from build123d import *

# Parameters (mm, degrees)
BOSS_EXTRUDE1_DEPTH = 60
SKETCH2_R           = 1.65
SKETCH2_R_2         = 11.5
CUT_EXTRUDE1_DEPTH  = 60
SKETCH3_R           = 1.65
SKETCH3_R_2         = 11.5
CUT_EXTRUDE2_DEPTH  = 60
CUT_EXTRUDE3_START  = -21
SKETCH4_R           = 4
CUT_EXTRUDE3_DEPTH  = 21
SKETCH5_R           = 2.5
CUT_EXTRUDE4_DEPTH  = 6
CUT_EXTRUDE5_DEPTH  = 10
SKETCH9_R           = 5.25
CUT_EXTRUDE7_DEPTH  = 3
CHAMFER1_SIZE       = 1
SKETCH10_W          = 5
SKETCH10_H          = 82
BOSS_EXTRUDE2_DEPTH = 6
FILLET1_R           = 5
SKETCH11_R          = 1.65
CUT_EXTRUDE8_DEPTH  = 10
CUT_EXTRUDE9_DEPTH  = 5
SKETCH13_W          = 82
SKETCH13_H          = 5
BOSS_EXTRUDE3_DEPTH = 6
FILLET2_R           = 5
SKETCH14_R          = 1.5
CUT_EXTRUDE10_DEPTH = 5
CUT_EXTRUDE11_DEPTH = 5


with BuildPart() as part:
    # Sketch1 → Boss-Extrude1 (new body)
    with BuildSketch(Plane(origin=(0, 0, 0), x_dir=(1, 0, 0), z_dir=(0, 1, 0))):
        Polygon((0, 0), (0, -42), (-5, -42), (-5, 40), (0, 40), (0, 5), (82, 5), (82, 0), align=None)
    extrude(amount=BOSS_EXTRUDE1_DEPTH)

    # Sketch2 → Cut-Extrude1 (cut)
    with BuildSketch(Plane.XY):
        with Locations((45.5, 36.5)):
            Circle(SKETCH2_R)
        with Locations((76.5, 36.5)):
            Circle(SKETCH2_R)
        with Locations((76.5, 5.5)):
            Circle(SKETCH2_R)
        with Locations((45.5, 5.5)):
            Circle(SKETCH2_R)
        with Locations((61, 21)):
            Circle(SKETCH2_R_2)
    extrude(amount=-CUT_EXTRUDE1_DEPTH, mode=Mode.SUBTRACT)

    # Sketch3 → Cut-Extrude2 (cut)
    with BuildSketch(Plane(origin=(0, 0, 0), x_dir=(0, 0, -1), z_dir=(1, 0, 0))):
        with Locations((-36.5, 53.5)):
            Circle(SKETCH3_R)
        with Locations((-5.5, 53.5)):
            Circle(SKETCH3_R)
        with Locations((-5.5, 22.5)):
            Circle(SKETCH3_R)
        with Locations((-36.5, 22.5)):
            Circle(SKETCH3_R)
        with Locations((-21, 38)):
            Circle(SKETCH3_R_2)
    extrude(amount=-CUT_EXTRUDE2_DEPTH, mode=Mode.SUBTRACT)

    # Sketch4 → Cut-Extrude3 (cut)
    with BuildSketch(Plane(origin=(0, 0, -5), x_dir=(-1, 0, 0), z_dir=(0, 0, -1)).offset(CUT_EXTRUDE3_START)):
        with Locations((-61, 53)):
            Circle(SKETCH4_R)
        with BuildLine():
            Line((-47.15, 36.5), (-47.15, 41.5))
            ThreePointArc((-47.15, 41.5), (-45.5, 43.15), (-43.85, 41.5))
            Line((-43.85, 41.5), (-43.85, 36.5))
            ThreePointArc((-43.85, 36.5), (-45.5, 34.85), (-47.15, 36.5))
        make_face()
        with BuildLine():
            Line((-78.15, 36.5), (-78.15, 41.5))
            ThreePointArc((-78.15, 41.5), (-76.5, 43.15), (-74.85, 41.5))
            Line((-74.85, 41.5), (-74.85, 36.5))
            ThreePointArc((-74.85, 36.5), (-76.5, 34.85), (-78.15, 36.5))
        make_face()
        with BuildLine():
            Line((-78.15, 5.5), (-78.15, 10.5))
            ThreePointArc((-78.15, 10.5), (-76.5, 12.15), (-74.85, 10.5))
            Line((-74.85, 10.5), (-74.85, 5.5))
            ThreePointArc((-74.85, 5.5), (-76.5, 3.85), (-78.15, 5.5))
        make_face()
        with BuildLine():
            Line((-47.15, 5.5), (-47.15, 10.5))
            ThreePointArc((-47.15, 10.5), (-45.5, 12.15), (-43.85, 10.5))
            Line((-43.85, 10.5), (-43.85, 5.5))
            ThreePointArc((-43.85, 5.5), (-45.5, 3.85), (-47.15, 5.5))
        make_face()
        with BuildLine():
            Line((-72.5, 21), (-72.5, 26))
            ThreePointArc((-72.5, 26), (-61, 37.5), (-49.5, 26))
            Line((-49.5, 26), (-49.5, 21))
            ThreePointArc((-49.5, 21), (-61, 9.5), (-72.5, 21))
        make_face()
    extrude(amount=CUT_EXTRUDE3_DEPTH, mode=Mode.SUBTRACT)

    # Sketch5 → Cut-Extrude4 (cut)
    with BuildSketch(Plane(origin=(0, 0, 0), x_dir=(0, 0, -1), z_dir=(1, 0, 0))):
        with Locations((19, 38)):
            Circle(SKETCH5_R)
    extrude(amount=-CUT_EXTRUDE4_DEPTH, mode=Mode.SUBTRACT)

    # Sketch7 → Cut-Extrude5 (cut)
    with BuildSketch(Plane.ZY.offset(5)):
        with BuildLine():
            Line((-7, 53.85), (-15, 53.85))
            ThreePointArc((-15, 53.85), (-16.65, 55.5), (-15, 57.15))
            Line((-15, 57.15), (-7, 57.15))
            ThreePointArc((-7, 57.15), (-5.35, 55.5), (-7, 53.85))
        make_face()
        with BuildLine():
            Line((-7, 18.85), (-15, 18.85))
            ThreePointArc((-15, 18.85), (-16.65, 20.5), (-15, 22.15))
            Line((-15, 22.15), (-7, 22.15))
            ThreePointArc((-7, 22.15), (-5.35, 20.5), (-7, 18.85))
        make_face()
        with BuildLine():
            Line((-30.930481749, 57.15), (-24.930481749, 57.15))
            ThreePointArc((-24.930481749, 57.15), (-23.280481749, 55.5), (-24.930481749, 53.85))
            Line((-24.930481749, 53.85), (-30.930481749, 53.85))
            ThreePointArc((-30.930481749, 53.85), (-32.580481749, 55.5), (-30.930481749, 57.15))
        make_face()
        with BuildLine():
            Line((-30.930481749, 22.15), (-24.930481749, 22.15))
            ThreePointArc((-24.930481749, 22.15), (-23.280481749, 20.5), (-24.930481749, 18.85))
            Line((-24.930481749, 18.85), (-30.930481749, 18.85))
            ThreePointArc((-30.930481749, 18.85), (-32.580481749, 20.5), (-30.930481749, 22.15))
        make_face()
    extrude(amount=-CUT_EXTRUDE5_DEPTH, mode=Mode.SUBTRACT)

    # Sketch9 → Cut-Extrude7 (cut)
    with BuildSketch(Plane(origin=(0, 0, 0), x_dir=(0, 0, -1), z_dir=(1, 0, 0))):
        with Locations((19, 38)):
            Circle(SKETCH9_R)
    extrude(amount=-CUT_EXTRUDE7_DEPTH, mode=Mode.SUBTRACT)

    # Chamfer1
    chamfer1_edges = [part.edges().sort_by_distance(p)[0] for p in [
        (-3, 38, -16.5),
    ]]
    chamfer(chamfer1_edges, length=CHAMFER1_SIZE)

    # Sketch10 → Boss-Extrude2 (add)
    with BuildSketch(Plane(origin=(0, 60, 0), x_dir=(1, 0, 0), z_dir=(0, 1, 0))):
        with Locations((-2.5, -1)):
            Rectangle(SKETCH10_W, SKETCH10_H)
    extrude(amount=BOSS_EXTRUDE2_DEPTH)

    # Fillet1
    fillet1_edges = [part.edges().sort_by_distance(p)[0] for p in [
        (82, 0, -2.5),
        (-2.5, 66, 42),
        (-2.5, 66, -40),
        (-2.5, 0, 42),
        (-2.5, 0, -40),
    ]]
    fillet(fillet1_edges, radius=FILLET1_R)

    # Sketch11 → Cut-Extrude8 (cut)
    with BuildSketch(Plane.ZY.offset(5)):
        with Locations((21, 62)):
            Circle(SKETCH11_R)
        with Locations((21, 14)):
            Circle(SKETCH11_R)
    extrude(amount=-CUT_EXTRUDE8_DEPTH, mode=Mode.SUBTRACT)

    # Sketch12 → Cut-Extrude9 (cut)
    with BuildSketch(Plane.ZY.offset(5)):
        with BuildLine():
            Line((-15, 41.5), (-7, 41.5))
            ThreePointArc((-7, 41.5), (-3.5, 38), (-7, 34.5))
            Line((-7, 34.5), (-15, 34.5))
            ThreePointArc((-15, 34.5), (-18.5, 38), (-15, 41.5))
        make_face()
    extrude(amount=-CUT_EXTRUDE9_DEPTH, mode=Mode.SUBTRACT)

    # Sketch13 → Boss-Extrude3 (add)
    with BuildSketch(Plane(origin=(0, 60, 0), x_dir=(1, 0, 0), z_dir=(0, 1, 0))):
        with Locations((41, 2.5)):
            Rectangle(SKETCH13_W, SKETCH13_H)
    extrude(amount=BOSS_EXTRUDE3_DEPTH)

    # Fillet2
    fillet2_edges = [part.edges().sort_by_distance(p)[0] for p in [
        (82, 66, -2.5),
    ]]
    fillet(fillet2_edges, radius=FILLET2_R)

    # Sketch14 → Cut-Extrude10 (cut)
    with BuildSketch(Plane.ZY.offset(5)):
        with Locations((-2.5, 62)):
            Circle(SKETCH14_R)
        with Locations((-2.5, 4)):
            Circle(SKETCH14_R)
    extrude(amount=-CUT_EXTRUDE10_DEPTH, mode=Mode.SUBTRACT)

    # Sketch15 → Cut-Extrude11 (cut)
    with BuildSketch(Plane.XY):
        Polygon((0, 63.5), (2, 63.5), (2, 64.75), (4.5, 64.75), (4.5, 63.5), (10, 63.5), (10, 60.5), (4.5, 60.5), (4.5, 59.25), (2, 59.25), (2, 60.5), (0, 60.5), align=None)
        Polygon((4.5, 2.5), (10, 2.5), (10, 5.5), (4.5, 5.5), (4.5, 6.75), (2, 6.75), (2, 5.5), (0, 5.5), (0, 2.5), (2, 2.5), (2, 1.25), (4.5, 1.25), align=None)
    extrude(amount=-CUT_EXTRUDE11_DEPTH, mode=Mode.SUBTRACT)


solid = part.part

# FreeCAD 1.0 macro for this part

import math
import FreeCAD as App
import Part
import Sketcher
from FreeCAD import Vector


def edges_at(feature, points):
    """Names of the edges that pass closest to the given points."""
    edges = feature.Shape.Edges
    near = lambda p: min(range(len(edges)), key=lambda i: edges[i].distToShape(Part.Vertex(*p))[0])
    return sorted({f"Edge{near(p) + 1}" for p in points})

doc = App.newDocument("Part")
body = doc.addObject("PartDesign::Body", "Body")

# Sketch on XZ plane
sketch1 = body.newObject("Sketcher::SketchObject", "Sketch")
sketch1.AttachmentSupport = (doc.getObject("XZ_Plane"), [""])
sketch1.MapMode = "FlatFace"
sketch1.addGeometry(Part.LineSegment(Vector(0, 42, 0), Vector(0, 0, 0)), False)
sketch1.addGeometry(Part.LineSegment(Vector(0, 0, 0), Vector(82, 0, 0)), False)
sketch1.addGeometry(Part.LineSegment(Vector(82, 0, 0), Vector(82, -5, 0)), False)
sketch1.addGeometry(Part.LineSegment(Vector(82, -5, 0), Vector(0, -5, 0)), False)
sketch1.addGeometry(Part.LineSegment(Vector(0, -5, 0), Vector(0, -40, 0)), False)
sketch1.addGeometry(Part.LineSegment(Vector(0, -40, 0), Vector(-5, -40, 0)), False)
sketch1.addGeometry(Part.LineSegment(Vector(-5, -40, 0), Vector(-5, 42, 0)), False)
sketch1.addGeometry(Part.LineSegment(Vector(-5, 42, 0), Vector(0, 42, 0)), False)
sketch1.addConstraint(Sketcher.Constraint("Coincident", 0, 2, 1, 1))
sketch1.addConstraint(Sketcher.Constraint("Coincident", 1, 2, 2, 1))
sketch1.addConstraint(Sketcher.Constraint("Coincident", 2, 2, 3, 1))
sketch1.addConstraint(Sketcher.Constraint("Coincident", 3, 2, 4, 1))
sketch1.addConstraint(Sketcher.Constraint("Coincident", 4, 2, 5, 1))
sketch1.addConstraint(Sketcher.Constraint("Coincident", 5, 2, 6, 1))
sketch1.addConstraint(Sketcher.Constraint("Coincident", 6, 2, 7, 1))
sketch1.addConstraint(Sketcher.Constraint("Coincident", 7, 2, 0, 1))
sketch1.addConstraint(Sketcher.Constraint("Vertical", 0))
sketch1.addConstraint(Sketcher.Constraint("Horizontal", 1))
sketch1.addConstraint(Sketcher.Constraint("Vertical", 2))
sketch1.addConstraint(Sketcher.Constraint("Horizontal", 3))
sketch1.addConstraint(Sketcher.Constraint("Vertical", 4))
sketch1.addConstraint(Sketcher.Constraint("Horizontal", 5))
sketch1.addConstraint(Sketcher.Constraint("Vertical", 6))
sketch1.addConstraint(Sketcher.Constraint("Horizontal", 7))
sketch1.addConstraint(Sketcher.Constraint("Coincident", 0, 2, -1, 1))
sketch1.addConstraint(Sketcher.Constraint("PointOnObject", 3, 2, -2))
sketch1.addConstraint(Sketcher.Constraint("Equal", 7, 2))
sketch1.addConstraint(Sketcher.Constraint("Equal", 3, 6))
sketch1.addConstraint(Sketcher.Constraint("DistanceX", 1, 1, 1, 2, 82.0))
sketch1.addConstraint(Sketcher.Constraint("DistanceX", 5, 2, 5, 1, 5.0))
sketch1.addConstraint(Sketcher.Constraint("DistanceY", 0, 2, 0, 1, 42.0))
pad1 = body.newObject("PartDesign::Pad", "Pad")
pad1.Profile = sketch1
pad1.Length = 60
pad1.Reversed = True

# Sketch on XY plane
sketch2 = body.newObject("Sketcher::SketchObject", "Sketch001")
sketch2.AttachmentSupport = (doc.getObject("XY_Plane"), [""])
sketch2.MapMode = "FlatFace"
sketch2.addGeometry(Part.Circle(Vector(45.5, 36.5, 0), Vector(0, 0, 1), 1.6), False)
sketch2.addGeometry(Part.Circle(Vector(76.5, 36.5, 0), Vector(0, 0, 1), 1.6), False)
sketch2.addGeometry(Part.Circle(Vector(76.5, 5.5, 0), Vector(0, 0, 1), 1.6), False)
sketch2.addGeometry(Part.Circle(Vector(45.5, 5.5, 0), Vector(0, 0, 1), 1.6), False)
sketch2.addGeometry(Part.Circle(Vector(61, 21, 0), Vector(0, 0, 1), 11.5), False)
sketch2.addConstraint(Sketcher.Constraint("Equal", 0, 1))
sketch2.addConstraint(Sketcher.Constraint("Equal", 1, 2))
sketch2.addConstraint(Sketcher.Constraint("Equal", 2, 3))
sketch2.addConstraint(Sketcher.Constraint("Horizontal", 0, 3, 1, 3))
sketch2.addConstraint(Sketcher.Constraint("Horizontal", 2, 3, 3, 3))
sketch2.addConstraint(Sketcher.Constraint("Vertical", 1, 3, 2, 3))
sketch2.addConstraint(Sketcher.Constraint("Vertical", 0, 3, 3, 3))
sketch2.addConstraint(Sketcher.Constraint("Diameter", 4, 23.0))
sketch2.addConstraint(Sketcher.Constraint("Diameter", 0, 3.3))
sketch2.addConstraint(Sketcher.Constraint("DistanceX", -1, 1, 4, 3, 61.0))
sketch2.addConstraint(Sketcher.Constraint("DistanceY", -1, 1, 4, 3, 21.0))
sketch2.addConstraint(Sketcher.Constraint("DistanceX", 0, 3, 1, 3, 31.0))
sketch2.addConstraint(Sketcher.Constraint("DistanceY", 2, 3, 1, 3, 31.0))
sketch2.addConstraint(Sketcher.Constraint("DistanceX", -1, 1, 0, 3, 45.5))
sketch2.addConstraint(Sketcher.Constraint("DistanceY", -1, 1, 0, 3, 36.5))
pocket1 = body.newObject("PartDesign::Pocket", "Pocket")
pocket1.Profile = sketch2
pocket1.Length = 60

# Sketch on YZ plane
sketch3 = body.newObject("Sketcher::SketchObject", "Sketch002")
sketch3.AttachmentSupport = (doc.getObject("YZ_Plane"), [""])
sketch3.MapMode = "FlatFace"
sketch3.addGeometry(Part.Circle(Vector(53.5, 36.5, 0), Vector(0, 0, 1), 1.6), False)
sketch3.addGeometry(Part.Circle(Vector(53.5, 5.5, 0), Vector(0, 0, 1), 1.6), False)
sketch3.addGeometry(Part.Circle(Vector(22.5, 5.5, 0), Vector(0, 0, 1), 1.6), False)
sketch3.addGeometry(Part.Circle(Vector(22.5, 36.5, 0), Vector(0, 0, 1), 1.6), False)
sketch3.addGeometry(Part.Circle(Vector(38, 21, 0), Vector(0, 0, 1), 11.5), False)
sketch3.addConstraint(Sketcher.Constraint("Equal", 0, 1))
sketch3.addConstraint(Sketcher.Constraint("Equal", 1, 2))
sketch3.addConstraint(Sketcher.Constraint("Equal", 2, 3))
sketch3.addConstraint(Sketcher.Constraint("Horizontal", 1, 3, 2, 3))
sketch3.addConstraint(Sketcher.Constraint("Horizontal", 0, 3, 3, 3))
sketch3.addConstraint(Sketcher.Constraint("Vertical", 0, 3, 1, 3))
sketch3.addConstraint(Sketcher.Constraint("Vertical", 2, 3, 3, 3))
sketch3.addConstraint(Sketcher.Constraint("Diameter", 4, 23.0))
sketch3.addConstraint(Sketcher.Constraint("Diameter", 0, 3.3))
sketch3.addConstraint(Sketcher.Constraint("DistanceX", -1, 1, 4, 3, 38.0))
sketch3.addConstraint(Sketcher.Constraint("DistanceY", -1, 1, 4, 3, 21.0))
sketch3.addConstraint(Sketcher.Constraint("DistanceY", 1, 3, 0, 3, 31.0))
sketch3.addConstraint(Sketcher.Constraint("DistanceX", 2, 3, 1, 3, 31.0))
sketch3.addConstraint(Sketcher.Constraint("DistanceX", -1, 1, 0, 3, 53.5))
sketch3.addConstraint(Sketcher.Constraint("DistanceY", -1, 1, 0, 3, 36.5))
pocket2 = body.newObject("PartDesign::Pocket", "Pocket001")
pocket2.Profile = sketch3
pocket2.Length = 60

# Sketch on XY plane
sketch4 = body.newObject("Sketcher::SketchObject", "Sketch003")
sketch4.AttachmentSupport = (doc.getObject("XY_Plane"), [""])
sketch4.MapMode = "FlatFace"
sketch4.AttachmentOffset = App.Placement(Vector(0, 0, 16), App.Rotation())
sketch4.addGeometry(Part.Circle(Vector(61, 53, 0), Vector(0, 0, 1), 4), False)
sketch4.addGeometry(Part.LineSegment(Vector(47.1, 41.5, 0), Vector(47.1, 36.5, 0)), False)
sketch4.addGeometry(Part.ArcOfCircle(Part.Circle(Vector(45.5, 36.5, 0), Vector(0, 0, 1), 1.6), math.radians(180), math.radians(360)), False)
sketch4.addGeometry(Part.LineSegment(Vector(43.9, 36.5, 0), Vector(43.9, 41.5, 0)), False)
sketch4.addGeometry(Part.ArcOfCircle(Part.Circle(Vector(45.5, 41.5, 0), Vector(0, 0, 1), 1.6), math.radians(0), math.radians(180)), False)
sketch4.addGeometry(Part.LineSegment(Vector(78.2, 41.5, 0), Vector(78.2, 36.5, 0)), False)
sketch4.addGeometry(Part.ArcOfCircle(Part.Circle(Vector(76.5, 36.5, 0), Vector(0, 0, 1), 1.6), math.radians(180), math.radians(360)), False)
sketch4.addGeometry(Part.LineSegment(Vector(74.8, 36.5, 0), Vector(74.8, 41.5, 0)), False)
sketch4.addGeometry(Part.ArcOfCircle(Part.Circle(Vector(76.5, 41.5, 0), Vector(0, 0, 1), 1.6), math.radians(0), math.radians(180)), False)
sketch4.addGeometry(Part.LineSegment(Vector(78.2, 10.5, 0), Vector(78.2, 5.5, 0)), False)
sketch4.addGeometry(Part.ArcOfCircle(Part.Circle(Vector(76.5, 5.5, 0), Vector(0, 0, 1), 1.6), math.radians(180), math.radians(360)), False)
sketch4.addGeometry(Part.LineSegment(Vector(74.8, 5.5, 0), Vector(74.8, 10.5, 0)), False)
sketch4.addGeometry(Part.ArcOfCircle(Part.Circle(Vector(76.5, 10.5, 0), Vector(0, 0, 1), 1.6), math.radians(0), math.radians(180)), False)
sketch4.addGeometry(Part.LineSegment(Vector(47.1, 10.5, 0), Vector(47.1, 5.5, 0)), False)
sketch4.addGeometry(Part.ArcOfCircle(Part.Circle(Vector(45.5, 5.5, 0), Vector(0, 0, 1), 1.6), math.radians(180), math.radians(360)), False)
sketch4.addGeometry(Part.LineSegment(Vector(43.9, 5.5, 0), Vector(43.9, 10.5, 0)), False)
sketch4.addGeometry(Part.ArcOfCircle(Part.Circle(Vector(45.5, 10.5, 0), Vector(0, 0, 1), 1.6), math.radians(0), math.radians(180)), False)
sketch4.addGeometry(Part.LineSegment(Vector(72.5, 26, 0), Vector(72.5, 21, 0)), False)
sketch4.addGeometry(Part.ArcOfCircle(Part.Circle(Vector(61, 21, 0), Vector(0, 0, 1), 11.5), math.radians(180), math.radians(360)), False)
sketch4.addGeometry(Part.LineSegment(Vector(49.5, 21, 0), Vector(49.5, 26, 0)), False)
sketch4.addGeometry(Part.ArcOfCircle(Part.Circle(Vector(61, 26, 0), Vector(0, 0, 1), 11.5), math.radians(0), math.radians(180)), False)
sketch4.addConstraint(Sketcher.Constraint("Tangent", 1, 2, 2, 2))
sketch4.addConstraint(Sketcher.Constraint("Tangent", 2, 1, 3, 1))
sketch4.addConstraint(Sketcher.Constraint("Tangent", 3, 2, 4, 2))
sketch4.addConstraint(Sketcher.Constraint("Tangent", 4, 1, 1, 1))
sketch4.addConstraint(Sketcher.Constraint("Tangent", 5, 2, 6, 2))
sketch4.addConstraint(Sketcher.Constraint("Tangent", 6, 1, 7, 1))
sketch4.addConstraint(Sketcher.Constraint("Tangent", 7, 2, 8, 2))
sketch4.addConstraint(Sketcher.Constraint("Tangent", 8, 1, 5, 1))
sketch4.addConstraint(Sketcher.Constraint("Tangent", 9, 2, 10, 2))
sketch4.addConstraint(Sketcher.Constraint("Tangent", 10, 1, 11, 1))
sketch4.addConstraint(Sketcher.Constraint("Tangent", 11, 2, 12, 2))
sketch4.addConstraint(Sketcher.Constraint("Tangent", 12, 1, 9, 1))
sketch4.addConstraint(Sketcher.Constraint("Tangent", 13, 2, 14, 2))
sketch4.addConstraint(Sketcher.Constraint("Tangent", 14, 1, 15, 1))
sketch4.addConstraint(Sketcher.Constraint("Tangent", 15, 2, 16, 2))
sketch4.addConstraint(Sketcher.Constraint("Tangent", 16, 1, 13, 1))
sketch4.addConstraint(Sketcher.Constraint("Tangent", 17, 2, 18, 2))
sketch4.addConstraint(Sketcher.Constraint("Tangent", 18, 1, 19, 1))
sketch4.addConstraint(Sketcher.Constraint("Tangent", 19, 2, 20, 2))
sketch4.addConstraint(Sketcher.Constraint("Tangent", 20, 1, 17, 1))
sketch4.addConstraint(Sketcher.Constraint("Vertical", 1))
sketch4.addConstraint(Sketcher.Constraint("Vertical", 3))
sketch4.addConstraint(Sketcher.Constraint("Vertical", 5))
sketch4.addConstraint(Sketcher.Constraint("Vertical", 7))
sketch4.addConstraint(Sketcher.Constraint("Vertical", 9))
sketch4.addConstraint(Sketcher.Constraint("Vertical", 11))
sketch4.addConstraint(Sketcher.Constraint("Vertical", 13))
sketch4.addConstraint(Sketcher.Constraint("Vertical", 15))
sketch4.addConstraint(Sketcher.Constraint("Vertical", 17))
sketch4.addConstraint(Sketcher.Constraint("Vertical", 19))
sketch4.addConstraint(Sketcher.Constraint("Equal", 4, 6))
sketch4.addConstraint(Sketcher.Constraint("Equal", 8, 10))
sketch4.addConstraint(Sketcher.Constraint("Equal", 12, 14))
sketch4.addConstraint(Sketcher.Constraint("Horizontal", 2, 3, 6, 3))
sketch4.addConstraint(Sketcher.Constraint("Horizontal", 4, 3, 8, 3))
sketch4.addConstraint(Sketcher.Constraint("Horizontal", 10, 3, 14, 3))
sketch4.addConstraint(Sketcher.Constraint("Horizontal", 12, 3, 16, 3))
sketch4.addConstraint(Sketcher.Constraint("Vertical", 8, 3, 10, 3))
sketch4.addConstraint(Sketcher.Constraint("Vertical", 4, 3, 14, 3))
sketch4.addConstraint(Sketcher.Constraint("Vertical", 0, 3, 18, 3))
sketch4.addConstraint(Sketcher.Constraint("Equal", 7, 9))
sketch4.addConstraint(Sketcher.Constraint("Equal", 15, 17))
sketch4.addConstraint(Sketcher.Constraint("Diameter", 0, 8.0))
sketch4.addConstraint(Sketcher.Constraint("Radius", 18, 11.5))
sketch4.addConstraint(Sketcher.Constraint("DistanceY", 1, 2, 1, 1, 5.0))
sketch4.addConstraint(Sketcher.Constraint("Radius", 2, 1.65))
sketch4.addConstraint(Sketcher.Constraint("DistanceX", -1, 1, 0, 3, 61.0))
sketch4.addConstraint(Sketcher.Constraint("DistanceY", -1, 1, 0, 3, 53.0))
sketch4.addConstraint(Sketcher.Constraint("DistanceY", -1, 1, 18, 3, 21.0))
sketch4.addConstraint(Sketcher.Constraint("DistanceX", 2, 3, 6, 3, 31.0))
sketch4.addConstraint(Sketcher.Constraint("DistanceY", 10, 3, 6, 3, 31.0))
sketch4.addConstraint(Sketcher.Constraint("DistanceX", 17, 2, 12, 3, 4.0))
sketch4.addConstraint(Sketcher.Constraint("DistanceY", -1, 1, 2, 3, 36.5))
pocket3 = body.newObject("PartDesign::Pocket", "Pocket002")
pocket3.Profile = sketch4
pocket3.Length = 21

# Sketch on YZ plane
sketch5 = body.newObject("Sketcher::SketchObject", "Sketch004")
sketch5.AttachmentSupport = (doc.getObject("YZ_Plane"), [""])
sketch5.MapMode = "FlatFace"
sketch5.addGeometry(Part.Circle(Vector(38, -19, 0), Vector(0, 0, 1), 2.5), False)
sketch5.addConstraint(Sketcher.Constraint("Diameter", 0, 5.0))
sketch5.addConstraint(Sketcher.Constraint("DistanceX", -1, 1, 0, 3, 38.0))
sketch5.addConstraint(Sketcher.Constraint("DistanceY", 0, 3, -1, 1, 19.0))
pocket4 = body.newObject("PartDesign::Pocket", "Pocket003")
pocket4.Profile = sketch5
pocket4.Length = 6

# Sketch on YZ plane
sketch6 = body.newObject("Sketcher::SketchObject", "Sketch005")
sketch6.AttachmentSupport = (doc.getObject("YZ_Plane"), [""])
sketch6.MapMode = "FlatFace"
sketch6.AttachmentOffset = App.Placement(Vector(0, 0, -5), App.Rotation())
sketch6.addGeometry(Part.LineSegment(Vector(53.9, -15, 0), Vector(53.9, -7, 0)), False)
sketch6.addGeometry(Part.ArcOfCircle(Part.Circle(Vector(55.5, -7, 0), Vector(0, 0, 1), 1.6), math.radians(0), math.radians(180)), False)
sketch6.addGeometry(Part.LineSegment(Vector(57.1, -7, 0), Vector(57.1, -15, 0)), False)
sketch6.addGeometry(Part.ArcOfCircle(Part.Circle(Vector(55.5, -15, 0), Vector(0, 0, 1), 1.6), math.radians(180), math.radians(360)), False)
sketch6.addGeometry(Part.LineSegment(Vector(18.9, -15, 0), Vector(18.9, -7, 0)), False)
sketch6.addGeometry(Part.ArcOfCircle(Part.Circle(Vector(20.5, -7, 0), Vector(0, 0, 1), 1.6), math.radians(0), math.radians(180)), False)
sketch6.addGeometry(Part.LineSegment(Vector(22.1, -7, 0), Vector(22.1, -15, 0)), False)
sketch6.addGeometry(Part.ArcOfCircle(Part.Circle(Vector(20.5, -15, 0), Vector(0, 0, 1), 1.6), math.radians(180), math.radians(360)), False)
sketch6.addGeometry(Part.LineSegment(Vector(57.1, -24.9, 0), Vector(57.1, -30.9, 0)), False)
sketch6.addGeometry(Part.ArcOfCircle(Part.Circle(Vector(55.5, -30.9, 0), Vector(0, 0, 1), 1.6), math.radians(180), math.radians(360)), False)
sketch6.addGeometry(Part.LineSegment(Vector(53.9, -30.9, 0), Vector(53.9, -24.9, 0)), False)
sketch6.addGeometry(Part.ArcOfCircle(Part.Circle(Vector(55.5, -24.9, 0), Vector(0, 0, 1), 1.6), math.radians(0), math.radians(180)), False)
sketch6.addGeometry(Part.LineSegment(Vector(22.1, -24.9, 0), Vector(22.1, -30.9, 0)), False)
sketch6.addGeometry(Part.ArcOfCircle(Part.Circle(Vector(20.5, -30.9, 0), Vector(0, 0, 1), 1.6), math.radians(180), math.radians(360)), False)
sketch6.addGeometry(Part.LineSegment(Vector(18.9, -30.9, 0), Vector(18.9, -24.9, 0)), False)
sketch6.addGeometry(Part.ArcOfCircle(Part.Circle(Vector(20.5, -24.9, 0), Vector(0, 0, 1), 1.6), math.radians(0), math.radians(180)), False)
sketch6.addConstraint(Sketcher.Constraint("Tangent", 0, 2, 1, 2))
sketch6.addConstraint(Sketcher.Constraint("Tangent", 1, 1, 2, 1))
sketch6.addConstraint(Sketcher.Constraint("Tangent", 2, 2, 3, 2))
sketch6.addConstraint(Sketcher.Constraint("Tangent", 3, 1, 0, 1))
sketch6.addConstraint(Sketcher.Constraint("Tangent", 4, 2, 5, 2))
sketch6.addConstraint(Sketcher.Constraint("Tangent", 5, 1, 6, 1))
sketch6.addConstraint(Sketcher.Constraint("Tangent", 6, 2, 7, 2))
sketch6.addConstraint(Sketcher.Constraint("Tangent", 7, 1, 4, 1))
sketch6.addConstraint(Sketcher.Constraint("Tangent", 8, 2, 9, 2))
sketch6.addConstraint(Sketcher.Constraint("Tangent", 9, 1, 10, 1))
sketch6.addConstraint(Sketcher.Constraint("Tangent", 10, 2, 11, 2))
sketch6.addConstraint(Sketcher.Constraint("Tangent", 11, 1, 8, 1))
sketch6.addConstraint(Sketcher.Constraint("Tangent", 12, 2, 13, 2))
sketch6.addConstraint(Sketcher.Constraint("Tangent", 13, 1, 14, 1))
sketch6.addConstraint(Sketcher.Constraint("Tangent", 14, 2, 15, 2))
sketch6.addConstraint(Sketcher.Constraint("Tangent", 15, 1, 12, 1))
sketch6.addConstraint(Sketcher.Constraint("Vertical", 0))
sketch6.addConstraint(Sketcher.Constraint("Vertical", 2))
sketch6.addConstraint(Sketcher.Constraint("Vertical", 4))
sketch6.addConstraint(Sketcher.Constraint("Vertical", 6))
sketch6.addConstraint(Sketcher.Constraint("Vertical", 8))
sketch6.addConstraint(Sketcher.Constraint("Vertical", 10))
sketch6.addConstraint(Sketcher.Constraint("Vertical", 12))
sketch6.addConstraint(Sketcher.Constraint("Vertical", 14))
sketch6.addConstraint(Sketcher.Constraint("Equal", 3, 5))
sketch6.addConstraint(Sketcher.Constraint("Equal", 7, 9))
sketch6.addConstraint(Sketcher.Constraint("Equal", 11, 13))
sketch6.addConstraint(Sketcher.Constraint("Horizontal", 1, 3, 5, 3))
sketch6.addConstraint(Sketcher.Constraint("Horizontal", 3, 3, 7, 3))
sketch6.addConstraint(Sketcher.Constraint("Horizontal", 9, 3, 13, 3))
sketch6.addConstraint(Sketcher.Constraint("Horizontal", 11, 3, 15, 3))
sketch6.addConstraint(Sketcher.Constraint("Vertical", 3, 3, 9, 3))
sketch6.addConstraint(Sketcher.Constraint("Vertical", 7, 3, 13, 3))
sketch6.addConstraint(Sketcher.Constraint("DistanceY", 0, 1, 0, 2, 8.0))
sketch6.addConstraint(Sketcher.Constraint("DistanceY", 8, 2, 8, 1, 6.0))
sketch6.addConstraint(Sketcher.Constraint("Radius", 1, 1.65))
sketch6.addConstraint(Sketcher.Constraint("DistanceY", 1, 3, -1, 1, 7.0))
sketch6.addConstraint(Sketcher.Constraint("DistanceX", 5, 3, 1, 3, 35.0))
sketch6.addConstraint(Sketcher.Constraint("DistanceX", -1, 1, 1, 3, 55.5))
sketch6.addConstraint(Sketcher.Constraint("DistanceY", 9, 3, -1, 1, 30.930482))
pocket5 = body.newObject("PartDesign::Pocket", "Pocket004")
pocket5.Profile = sketch6
pocket5.Length = 10
pocket5.Reversed = True

# Sketch on YZ plane
sketch7 = body.newObject("Sketcher::SketchObject", "Sketch006")
sketch7.AttachmentSupport = (doc.getObject("YZ_Plane"), [""])
sketch7.MapMode = "FlatFace"
sketch7.addGeometry(Part.Circle(Vector(38, -19, 0), Vector(0, 0, 1), 5), False)
sketch7.addConstraint(Sketcher.Constraint("Diameter", 0, 10.5))
sketch7.addConstraint(Sketcher.Constraint("DistanceX", -1, 1, 0, 3, 38.0))
sketch7.addConstraint(Sketcher.Constraint("DistanceY", 0, 3, -1, 1, 19.0))
pocket6 = body.newObject("PartDesign::Pocket", "Pocket005")
pocket6.Profile = sketch7
pocket6.Length = 3
doc.recompute()

chamfer = body.newObject("PartDesign::Chamfer", "Chamfer")
chamfer.Base = (pocket6, edges_at(pocket6, [(-3, 38, -16.5)]))
chamfer.Size = 1

# Sketch on XZ plane
sketch8 = body.newObject("Sketcher::SketchObject", "Sketch007")
sketch8.AttachmentSupport = (doc.getObject("XZ_Plane"), [""])
sketch8.MapMode = "FlatFace"
sketch8.AttachmentOffset = App.Placement(Vector(0, 0, -60), App.Rotation())
sketch8.addGeometry(Part.LineSegment(Vector(-5, -40, 0), Vector(-5, 42, 0)), False)
sketch8.addGeometry(Part.LineSegment(Vector(-5, 42, 0), Vector(0, 42, 0)), False)
sketch8.addGeometry(Part.LineSegment(Vector(0, 42, 0), Vector(0, -40, 0)), False)
sketch8.addGeometry(Part.LineSegment(Vector(0, -40, 0), Vector(-5, -40, 0)), False)
sketch8.addConstraint(Sketcher.Constraint("Coincident", 0, 2, 1, 1))
sketch8.addConstraint(Sketcher.Constraint("Coincident", 1, 2, 2, 1))
sketch8.addConstraint(Sketcher.Constraint("Coincident", 2, 2, 3, 1))
sketch8.addConstraint(Sketcher.Constraint("Coincident", 3, 2, 0, 1))
sketch8.addConstraint(Sketcher.Constraint("Vertical", 0))
sketch8.addConstraint(Sketcher.Constraint("Horizontal", 1))
sketch8.addConstraint(Sketcher.Constraint("Vertical", 2))
sketch8.addConstraint(Sketcher.Constraint("Horizontal", 3))
sketch8.addConstraint(Sketcher.Constraint("PointOnObject", 1, 2, -2))
sketch8.addConstraint(Sketcher.Constraint("DistanceX", 1, 1, 1, 2, 5.0))
sketch8.addConstraint(Sketcher.Constraint("DistanceY", 0, 1, 0, 2, 82.0))
sketch8.addConstraint(Sketcher.Constraint("DistanceY", -1, 1, 0, 2, 42.0))
pad2 = body.newObject("PartDesign::Pad", "Pad001")
pad2.Profile = sketch8
pad2.Length = 6
pad2.Reversed = True
doc.recompute()

fillet = body.newObject("PartDesign::Fillet", "Fillet")
fillet.Base = (pad2, edges_at(pad2, [
    (82, 0, -2.5),
    (-2.5, 66, 42),
    (-2.5, 66, -40),
    (-2.5, 0, 42),
    (-2.5, 0, -40),
]))
fillet.Radius = 5

# Sketch on YZ plane
sketch9 = body.newObject("Sketcher::SketchObject", "Sketch008")
sketch9.AttachmentSupport = (doc.getObject("YZ_Plane"), [""])
sketch9.MapMode = "FlatFace"
sketch9.AttachmentOffset = App.Placement(Vector(0, 0, -5), App.Rotation())
sketch9.addGeometry(Part.Circle(Vector(62, 21, 0), Vector(0, 0, 1), 1.6), False)
sketch9.addGeometry(Part.Circle(Vector(14, 21, 0), Vector(0, 0, 1), 1.6), False)
sketch9.addConstraint(Sketcher.Constraint("Equal", 0, 1))
sketch9.addConstraint(Sketcher.Constraint("Horizontal", 0, 3, 1, 3))
sketch9.addConstraint(Sketcher.Constraint("Diameter", 0, 3.3))
sketch9.addConstraint(Sketcher.Constraint("DistanceX", -1, 1, 0, 3, 62.0))
sketch9.addConstraint(Sketcher.Constraint("DistanceY", -1, 1, 0, 3, 21.0))
sketch9.addConstraint(Sketcher.Constraint("DistanceX", -1, 1, 1, 3, 14.0))
pocket7 = body.newObject("PartDesign::Pocket", "Pocket006")
pocket7.Profile = sketch9
pocket7.Length = 10
pocket7.Reversed = True

# Sketch on YZ plane
sketch10 = body.newObject("Sketcher::SketchObject", "Sketch009")
sketch10.AttachmentSupport = (doc.getObject("YZ_Plane"), [""])
sketch10.MapMode = "FlatFace"
sketch10.AttachmentOffset = App.Placement(Vector(0, 0, -5), App.Rotation())
sketch10.addGeometry(Part.LineSegment(Vector(41.5, -7, 0), Vector(41.5, -15, 0)), False)
sketch10.addGeometry(Part.ArcOfCircle(Part.Circle(Vector(38, -15, 0), Vector(0, 0, 1), 3.5), math.radians(180), math.radians(360)), False)
sketch10.addGeometry(Part.LineSegment(Vector(34.5, -15, 0), Vector(34.5, -7, 0)), False)
sketch10.addGeometry(Part.ArcOfCircle(Part.Circle(Vector(38, -7, 0), Vector(0, 0, 1), 3.5), math.radians(0), math.radians(180)), False)
sketch10.addConstraint(Sketcher.Constraint("Tangent", 0, 2, 1, 2))
sketch10.addConstraint(Sketcher.Constraint("Tangent", 1, 1, 2, 1))
sketch10.addConstraint(Sketcher.Constraint("Tangent", 2, 2, 3, 2))
sketch10.addConstraint(Sketcher.Constraint("Tangent", 3, 1, 0, 1))
sketch10.addConstraint(Sketcher.Constraint("Vertical", 0))
sketch10.addConstraint(Sketcher.Constraint("Vertical", 2))
sketch10.addConstraint(Sketcher.Constraint("Radius", 1, 3.5))
sketch10.addConstraint(Sketcher.Constraint("DistanceY", 0, 2, 0, 1, 8.0))
sketch10.addConstraint(Sketcher.Constraint("DistanceX", -1, 1, 1, 3, 38.0))
sketch10.addConstraint(Sketcher.Constraint("DistanceY", 1, 3, -1, 1, 15.0))
pocket8 = body.newObject("PartDesign::Pocket", "Pocket007")
pocket8.Profile = sketch10
pocket8.Length = 5
pocket8.Reversed = True

# Sketch on XZ plane
sketch11 = body.newObject("Sketcher::SketchObject", "Sketch010")
sketch11.AttachmentSupport = (doc.getObject("XZ_Plane"), [""])
sketch11.MapMode = "FlatFace"
sketch11.AttachmentOffset = App.Placement(Vector(0, 0, -60), App.Rotation())
sketch11.addGeometry(Part.LineSegment(Vector(0, -5, 0), Vector(0, 0, 0)), False)
sketch11.addGeometry(Part.LineSegment(Vector(0, 0, 0), Vector(82, 0, 0)), False)
sketch11.addGeometry(Part.LineSegment(Vector(82, 0, 0), Vector(82, -5, 0)), False)
sketch11.addGeometry(Part.LineSegment(Vector(82, -5, 0), Vector(0, -5, 0)), False)
sketch11.addConstraint(Sketcher.Constraint("Coincident", 0, 2, 1, 1))
sketch11.addConstraint(Sketcher.Constraint("Coincident", 1, 2, 2, 1))
sketch11.addConstraint(Sketcher.Constraint("Coincident", 2, 2, 3, 1))
sketch11.addConstraint(Sketcher.Constraint("Coincident", 3, 2, 0, 1))
sketch11.addConstraint(Sketcher.Constraint("Vertical", 0))
sketch11.addConstraint(Sketcher.Constraint("Horizontal", 1))
sketch11.addConstraint(Sketcher.Constraint("Vertical", 2))
sketch11.addConstraint(Sketcher.Constraint("Horizontal", 3))
sketch11.addConstraint(Sketcher.Constraint("Coincident", 0, 2, -1, 1))
sketch11.addConstraint(Sketcher.Constraint("DistanceX", 1, 1, 1, 2, 82.0))
sketch11.addConstraint(Sketcher.Constraint("DistanceY", 0, 1, 0, 2, 5.0))
pad3 = body.newObject("PartDesign::Pad", "Pad002")
pad3.Profile = sketch11
pad3.Length = 6
pad3.Reversed = True
doc.recompute()

fillet2 = body.newObject("PartDesign::Fillet", "Fillet001")
fillet2.Base = (pad3, edges_at(pad3, [(82, 66, -2.5)]))
fillet2.Radius = 5

# Sketch on YZ plane
sketch12 = body.newObject("Sketcher::SketchObject", "Sketch011")
sketch12.AttachmentSupport = (doc.getObject("YZ_Plane"), [""])
sketch12.MapMode = "FlatFace"
sketch12.AttachmentOffset = App.Placement(Vector(0, 0, -5), App.Rotation())
sketch12.addGeometry(Part.Circle(Vector(62, -2.5, 0), Vector(0, 0, 1), 1.5), False)
sketch12.addGeometry(Part.Circle(Vector(4, -2.5, 0), Vector(0, 0, 1), 1.5), False)
sketch12.addConstraint(Sketcher.Constraint("Equal", 0, 1))
sketch12.addConstraint(Sketcher.Constraint("Horizontal", 0, 3, 1, 3))
sketch12.addConstraint(Sketcher.Constraint("Diameter", 0, 3.0))
sketch12.addConstraint(Sketcher.Constraint("DistanceX", -1, 1, 0, 3, 62.0))
sketch12.addConstraint(Sketcher.Constraint("DistanceX", -1, 1, 1, 3, 4.0))
sketch12.addConstraint(Sketcher.Constraint("DistanceY", 0, 3, -1, 1, 2.5))
pocket9 = body.newObject("PartDesign::Pocket", "Pocket008")
pocket9.Profile = sketch12
pocket9.Length = 5
pocket9.Reversed = True

# Sketch on XY plane
sketch13 = body.newObject("Sketcher::SketchObject", "Sketch012")
sketch13.AttachmentSupport = (doc.getObject("XY_Plane"), [""])
sketch13.MapMode = "FlatFace"
sketch13.addGeometry(Part.LineSegment(Vector(2, 63.5, 0), Vector(0, 63.5, 0)), False)
sketch13.addGeometry(Part.LineSegment(Vector(0, 63.5, 0), Vector(0, 60.5, 0)), False)
sketch13.addGeometry(Part.LineSegment(Vector(0, 60.5, 0), Vector(2, 60.5, 0)), False)
sketch13.addGeometry(Part.LineSegment(Vector(2, 60.5, 0), Vector(2, 59.2, 0)), False)
sketch13.addGeometry(Part.LineSegment(Vector(2, 59.2, 0), Vector(4.5, 59.2, 0)), False)
sketch13.addGeometry(Part.LineSegment(Vector(4.5, 59.2, 0), Vector(4.5, 60.5, 0)), False)
sketch13.addGeometry(Part.LineSegment(Vector(4.5, 60.5, 0), Vector(10, 60.5, 0)), False)
sketch13.addGeometry(Part.LineSegment(Vector(10, 60.5, 0), Vector(10, 63.5, 0)), False)
sketch13.addGeometry(Part.LineSegment(Vector(10, 63.5, 0), Vector(4.5, 63.5, 0)), False)
sketch13.addGeometry(Part.LineSegment(Vector(4.5, 63.5, 0), Vector(4.5, 64.8, 0)), False)
sketch13.addGeometry(Part.LineSegment(Vector(4.5, 64.8, 0), Vector(2, 64.8, 0)), False)
sketch13.addGeometry(Part.LineSegment(Vector(2, 64.8, 0), Vector(2, 63.5, 0)), False)
sketch13.addGeometry(Part.LineSegment(Vector(4.5, 2.5, 0), Vector(10, 2.5, 0)), False)
sketch13.addGeometry(Part.LineSegment(Vector(10, 2.5, 0), Vector(10, 5.5, 0)), False)
sketch13.addGeometry(Part.LineSegment(Vector(10, 5.5, 0), Vector(4.5, 5.5, 0)), False)
sketch13.addGeometry(Part.LineSegment(Vector(4.5, 5.5, 0), Vector(4.5, 6.8, 0)), False)
sketch13.addGeometry(Part.LineSegment(Vector(4.5, 6.8, 0), Vector(2, 6.8, 0)), False)
sketch13.addGeometry(Part.LineSegment(Vector(2, 6.8, 0), Vector(2, 5.5, 0)), False)
sketch13.addGeometry(Part.LineSegment(Vector(2, 5.5, 0), Vector(0, 5.5, 0)), False)
sketch13.addGeometry(Part.LineSegment(Vector(0, 5.5, 0), Vector(0, 2.5, 0)), False)
sketch13.addGeometry(Part.LineSegment(Vector(0, 2.5, 0), Vector(2, 2.5, 0)), False)
sketch13.addGeometry(Part.LineSegment(Vector(2, 2.5, 0), Vector(2, 1.2, 0)), False)
sketch13.addGeometry(Part.LineSegment(Vector(2, 1.2, 0), Vector(4.5, 1.2, 0)), False)
sketch13.addGeometry(Part.LineSegment(Vector(4.5, 1.2, 0), Vector(4.5, 2.5, 0)), False)
sketch13.addConstraint(Sketcher.Constraint("Coincident", 0, 2, 1, 1))
sketch13.addConstraint(Sketcher.Constraint("Coincident", 1, 2, 2, 1))
sketch13.addConstraint(Sketcher.Constraint("Coincident", 2, 2, 3, 1))
sketch13.addConstraint(Sketcher.Constraint("Coincident", 3, 2, 4, 1))
sketch13.addConstraint(Sketcher.Constraint("Coincident", 4, 2, 5, 1))
sketch13.addConstraint(Sketcher.Constraint("Coincident", 5, 2, 6, 1))
sketch13.addConstraint(Sketcher.Constraint("Coincident", 6, 2, 7, 1))
sketch13.addConstraint(Sketcher.Constraint("Coincident", 7, 2, 8, 1))
sketch13.addConstraint(Sketcher.Constraint("Coincident", 8, 2, 9, 1))
sketch13.addConstraint(Sketcher.Constraint("Coincident", 9, 2, 10, 1))
sketch13.addConstraint(Sketcher.Constraint("Coincident", 10, 2, 11, 1))
sketch13.addConstraint(Sketcher.Constraint("Coincident", 11, 2, 0, 1))
sketch13.addConstraint(Sketcher.Constraint("Coincident", 12, 2, 13, 1))
sketch13.addConstraint(Sketcher.Constraint("Coincident", 13, 2, 14, 1))
sketch13.addConstraint(Sketcher.Constraint("Coincident", 14, 2, 15, 1))
sketch13.addConstraint(Sketcher.Constraint("Coincident", 15, 2, 16, 1))
sketch13.addConstraint(Sketcher.Constraint("Coincident", 16, 2, 17, 1))
sketch13.addConstraint(Sketcher.Constraint("Coincident", 17, 2, 18, 1))
sketch13.addConstraint(Sketcher.Constraint("Coincident", 18, 2, 19, 1))
sketch13.addConstraint(Sketcher.Constraint("Coincident", 19, 2, 20, 1))
sketch13.addConstraint(Sketcher.Constraint("Coincident", 20, 2, 21, 1))
sketch13.addConstraint(Sketcher.Constraint("Coincident", 21, 2, 22, 1))
sketch13.addConstraint(Sketcher.Constraint("Coincident", 22, 2, 23, 1))
sketch13.addConstraint(Sketcher.Constraint("Coincident", 23, 2, 12, 1))
sketch13.addConstraint(Sketcher.Constraint("Horizontal", 0))
sketch13.addConstraint(Sketcher.Constraint("Vertical", 1))
sketch13.addConstraint(Sketcher.Constraint("Horizontal", 2))
sketch13.addConstraint(Sketcher.Constraint("Vertical", 3))
sketch13.addConstraint(Sketcher.Constraint("Horizontal", 4))
sketch13.addConstraint(Sketcher.Constraint("Vertical", 5))
sketch13.addConstraint(Sketcher.Constraint("Horizontal", 6))
sketch13.addConstraint(Sketcher.Constraint("Vertical", 7))
sketch13.addConstraint(Sketcher.Constraint("Horizontal", 8))
sketch13.addConstraint(Sketcher.Constraint("Vertical", 9))
sketch13.addConstraint(Sketcher.Constraint("Horizontal", 10))
sketch13.addConstraint(Sketcher.Constraint("Vertical", 11))
sketch13.addConstraint(Sketcher.Constraint("Horizontal", 12))
sketch13.addConstraint(Sketcher.Constraint("Vertical", 13))
sketch13.addConstraint(Sketcher.Constraint("Horizontal", 14))
sketch13.addConstraint(Sketcher.Constraint("Vertical", 15))
sketch13.addConstraint(Sketcher.Constraint("Horizontal", 16))
sketch13.addConstraint(Sketcher.Constraint("Vertical", 17))
sketch13.addConstraint(Sketcher.Constraint("Horizontal", 18))
sketch13.addConstraint(Sketcher.Constraint("Vertical", 19))
sketch13.addConstraint(Sketcher.Constraint("Horizontal", 20))
sketch13.addConstraint(Sketcher.Constraint("Vertical", 21))
sketch13.addConstraint(Sketcher.Constraint("Horizontal", 22))
sketch13.addConstraint(Sketcher.Constraint("Vertical", 23))
sketch13.addConstraint(Sketcher.Constraint("PointOnObject", 0, 2, -2))
sketch13.addConstraint(Sketcher.Constraint("PointOnObject", 18, 2, -2))
sketch13.addConstraint(Sketcher.Constraint("Horizontal", 2, 2, 5, 2))
sketch13.addConstraint(Sketcher.Constraint("Horizontal", 0, 2, 7, 2))
sketch13.addConstraint(Sketcher.Constraint("Horizontal", 14, 2, 17, 2))
sketch13.addConstraint(Sketcher.Constraint("Horizontal", 12, 2, 19, 2))
sketch13.addConstraint(Sketcher.Constraint("Vertical", 5, 2, 8, 2))
sketch13.addConstraint(Sketcher.Constraint("Vertical", 3, 2, 10, 2))
sketch13.addConstraint(Sketcher.Constraint("Vertical", 7, 2, 12, 2))
sketch13.addConstraint(Sketcher.Constraint("Vertical", 9, 2, 14, 2))
sketch13.addConstraint(Sketcher.Constraint("Vertical", 11, 2, 16, 2))
sketch13.addConstraint(Sketcher.Constraint("Vertical", 17, 2, 20, 2))
sketch13.addConstraint(Sketcher.Constraint("Vertical", 15, 2, 22, 2))
sketch13.addConstraint(Sketcher.Constraint("Equal", 5, 9))
sketch13.addConstraint(Sketcher.Constraint("Equal", 7, 13))
sketch13.addConstraint(Sketcher.Constraint("Equal", 11, 15))
sketch13.addConstraint(Sketcher.Constraint("Equal", 17, 21))
sketch13.addConstraint(Sketcher.Constraint("DistanceX", 0, 2, 0, 1, 2.0))
sketch13.addConstraint(Sketcher.Constraint("DistanceY", 1, 2, 1, 1, 3.0))
sketch13.addConstraint(Sketcher.Constraint("DistanceX", 4, 1, 4, 2, 2.5))
sketch13.addConstraint(Sketcher.Constraint("DistanceX", 6, 1, 6, 2, 5.5))
sketch13.addConstraint(Sketcher.Constraint("DistanceY", 12, 2, 6, 2, 58.0))
sketch13.addConstraint(Sketcher.Constraint("DistanceY", 3, 2, 3, 1, 1.25))
sketch13.addConstraint(Sketcher.Constraint("DistanceY", -1, 1, 0, 2, 63.5))
pocket10 = body.newObject("PartDesign::Pocket", "Pocket009")
pocket10.Profile = sketch13
pocket10.Length = 5

doc.recompute()
